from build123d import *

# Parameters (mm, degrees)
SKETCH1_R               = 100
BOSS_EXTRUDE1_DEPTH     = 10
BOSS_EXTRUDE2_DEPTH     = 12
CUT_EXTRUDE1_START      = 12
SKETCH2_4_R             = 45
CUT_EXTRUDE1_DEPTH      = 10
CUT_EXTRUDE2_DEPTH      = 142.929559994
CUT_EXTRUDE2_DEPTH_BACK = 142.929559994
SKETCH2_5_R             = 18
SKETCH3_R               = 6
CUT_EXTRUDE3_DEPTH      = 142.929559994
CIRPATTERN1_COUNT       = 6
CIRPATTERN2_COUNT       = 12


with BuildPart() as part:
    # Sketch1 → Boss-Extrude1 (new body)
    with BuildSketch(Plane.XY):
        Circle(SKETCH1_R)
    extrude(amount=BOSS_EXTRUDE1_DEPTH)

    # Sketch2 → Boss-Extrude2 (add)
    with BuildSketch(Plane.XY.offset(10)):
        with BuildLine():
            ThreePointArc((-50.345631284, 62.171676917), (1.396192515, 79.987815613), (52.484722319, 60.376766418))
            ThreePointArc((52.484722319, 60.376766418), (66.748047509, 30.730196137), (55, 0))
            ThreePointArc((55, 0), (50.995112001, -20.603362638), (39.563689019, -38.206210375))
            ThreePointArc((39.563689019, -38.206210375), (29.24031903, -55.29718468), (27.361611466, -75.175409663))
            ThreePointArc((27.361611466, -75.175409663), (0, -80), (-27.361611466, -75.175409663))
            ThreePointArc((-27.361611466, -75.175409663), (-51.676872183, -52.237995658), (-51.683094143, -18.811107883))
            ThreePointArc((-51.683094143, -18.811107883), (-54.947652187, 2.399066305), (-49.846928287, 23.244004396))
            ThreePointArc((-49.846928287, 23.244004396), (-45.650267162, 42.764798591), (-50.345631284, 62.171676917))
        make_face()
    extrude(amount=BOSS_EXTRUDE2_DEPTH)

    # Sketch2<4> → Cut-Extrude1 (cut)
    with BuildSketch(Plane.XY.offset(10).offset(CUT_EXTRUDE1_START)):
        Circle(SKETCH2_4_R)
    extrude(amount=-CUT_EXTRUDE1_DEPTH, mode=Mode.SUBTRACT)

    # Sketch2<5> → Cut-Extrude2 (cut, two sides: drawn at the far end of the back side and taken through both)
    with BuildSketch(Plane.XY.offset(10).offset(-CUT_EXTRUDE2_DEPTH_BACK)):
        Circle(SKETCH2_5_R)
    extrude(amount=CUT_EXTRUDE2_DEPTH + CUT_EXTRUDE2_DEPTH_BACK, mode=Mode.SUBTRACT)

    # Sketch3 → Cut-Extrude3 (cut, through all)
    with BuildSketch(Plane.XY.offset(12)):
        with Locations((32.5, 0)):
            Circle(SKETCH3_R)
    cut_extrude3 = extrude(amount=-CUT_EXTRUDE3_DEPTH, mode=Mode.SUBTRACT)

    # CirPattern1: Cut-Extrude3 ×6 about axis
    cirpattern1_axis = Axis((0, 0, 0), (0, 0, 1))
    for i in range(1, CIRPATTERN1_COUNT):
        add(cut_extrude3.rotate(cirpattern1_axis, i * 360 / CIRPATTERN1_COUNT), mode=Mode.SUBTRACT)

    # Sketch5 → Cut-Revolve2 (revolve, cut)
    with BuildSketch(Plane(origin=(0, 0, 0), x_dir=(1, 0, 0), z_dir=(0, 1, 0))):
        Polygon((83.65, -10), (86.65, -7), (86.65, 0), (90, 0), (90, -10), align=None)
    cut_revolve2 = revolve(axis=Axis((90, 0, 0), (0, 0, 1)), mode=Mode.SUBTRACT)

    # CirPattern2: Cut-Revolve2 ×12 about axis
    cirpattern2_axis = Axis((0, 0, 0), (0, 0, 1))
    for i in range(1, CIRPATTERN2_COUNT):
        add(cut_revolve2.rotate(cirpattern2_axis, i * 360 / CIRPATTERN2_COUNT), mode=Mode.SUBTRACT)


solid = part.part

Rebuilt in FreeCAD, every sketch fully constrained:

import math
import FreeCAD as App
import Part
import Sketcher

V = App.Vector
Q = App.Units.Quantity

doc = App.newDocument("Part")
params = doc.addObject("Spreadsheet::Sheet", "Params")
for row, (alias, value) in enumerate([
    ("sketch1_diameter", "200 mm"),
    ("pad1_length", "10 mm"),
    ("sketch2_radius", "80 mm"),
    ("sketch2_radius2", "55 mm"),
    ("pad2_length", "12 mm"),
    ("sketch3_diameter", "90 mm"),
    ("pocket1_length", "10 mm"),
    ("sketch4_diameter", "36 mm"),
    ("sketch5_diameter", "12 mm"),
    ("sketch6_height", "10 mm"),
    ("sketch6_height2", "7 mm"),
    ("sketch6_width", "6.35 mm"),
    ("groove_angle", "360 deg"),
], start=1):
    params.set(f"A{row}", alias)
    params.set(f"B{row}", "=" + value)
    params.setAlias(f"B{row}", alias)

body = doc.addObject("PartDesign::Body", "Body")

sketch1 = body.newObject("Sketcher::SketchObject", "Sketch")
sketch1.AttachmentSupport = (doc.getObject("XY_Plane"), [""])
sketch1.MapMode = "FlatFace"
sketch1.addGeometry(Part.Circle(V(0, 0, 0), V(0, 0, 1), 100), False)
sketch1.addConstraint([
    Sketcher.Constraint("Coincident", 0, 3, -1, 1),
    Sketcher.Constraint("Diameter", 0, Q("200 mm")),
])
sketch1.setExpression("Constraints[1]", "Params.sketch1_diameter")
pad1 = body.newObject("PartDesign::Pad", "Pad")
pad1.Profile = sketch1
pad1.setExpression("Length", "Params.pad1_length")

sketch2 = body.newObject("Sketcher::SketchObject", "Sketch001")
sketch2.AttachmentSupport = (doc.getObject("XY_Plane"), [""])
sketch2.MapMode = "FlatFace"
sketch2.AttachmentOffset = App.Placement(V(0, 0, 10), App.Rotation())
sketch2.addGeometry([
    Part.ArcOfCircle(Part.Circle(V(0, 0, 0), V(0, 0, 1), 80), math.radians(49), math.radians(129)),
    Part.ArcOfCircle(Part.Circle(V(-90, 42, 0), V(0, 0, 1), 45), math.radians(-25), math.radians(26)),
    Part.ArcOfCircle(Part.Circle(V(0, 0, 0), V(0, 0, 1), 55), math.radians(155), math.radians(200)),
    Part.ArcOfCircle(Part.Circle(V(-13, -36, 0), V(0, 0, 1), 42), math.radians(157), math.radians(250)),
    Part.ArcOfCircle(Part.Circle(V(0, 0, 0), V(0, 0, 1), 80), math.radians(-110), math.radians(-70)),
    Part.ArcOfCircle(Part.Circle(V(72, -69, 0), V(0, 0, 1), 45), math.radians(136), math.radians(187)),
    Part.ArcOfCircle(Part.Circle(V(0, 0, 0), V(0, 0, 1), 55), math.radians(-44), math.radians(0)),
    Part.ArcOfCircle(Part.Circle(V(25, 29, 0), V(0, 0, 1), 42), math.radians(-44), math.radians(49)),
], False)
sketch2.addConstraint([
    Sketcher.Constraint("Coincident", 0, 2, 1, 2),
    Sketcher.Constraint("Tangent", 1, 1, 2, 1),
    Sketcher.Constraint("Coincident", 2, 2, 3, 1),
    Sketcher.Constraint("Tangent", 3, 2, 4, 1),
    Sketcher.Constraint("Coincident", 4, 2, 5, 2),
    Sketcher.Constraint("Tangent", 5, 1, 6, 1),
    Sketcher.Constraint("Coincident", 6, 2, 7, 1),
    Sketcher.Constraint("Tangent", 7, 2, 0, 1),
    Sketcher.Constraint("Coincident", 0, 3, -1, 1),
    Sketcher.Constraint("Coincident", 2, 3, -1, 1),
    Sketcher.Constraint("Coincident", 4, 3, -1, 1),
    Sketcher.Constraint("Coincident", 6, 3, -1, 1),
    Sketcher.Constraint("Equal", 0, 4),
    Sketcher.Constraint("Equal", 1, 5),
    Sketcher.Constraint("Equal", 2, 6),
    Sketcher.Constraint("PointOnObject", 6, 2, -1),
    Sketcher.Constraint("Horizontal", 3, 2, 4, 2),
    Sketcher.Constraint("Radius", 0, Q("80 mm")),
    Sketcher.Constraint("Radius", 2, Q("55 mm")),
    Sketcher.Constraint("Radius", 7, Q("41.575028 mm")),
    Sketcher.Constraint("Radius", 1, Q("44.831256 mm")),
    Sketcher.Constraint("Radius", 3, Q("42.203238 mm")),
    Sketcher.Constraint("DistanceY", 3, 2, 2, 2, Q("56.364302 mm")),
    Sketcher.Constraint("DistanceY", -1, 1, 1, 3, Q("42.190512 mm")),
])
sketch2.setExpression("Constraints[17]", "Params.sketch2_radius")
sketch2.setExpression("Constraints[18]", "Params.sketch2_radius2")
pad2 = body.newObject("PartDesign::Pad", "Pad001")
pad2.Profile = sketch2
pad2.setExpression("Length", "Params.pad2_length")

sketch3 = body.newObject("Sketcher::SketchObject", "Sketch002")
sketch3.AttachmentSupport = (doc.getObject("XY_Plane"), [""])
sketch3.MapMode = "FlatFace"
sketch3.AttachmentOffset = App.Placement(V(0, 0, 22), App.Rotation())
sketch3.addGeometry(Part.Circle(V(0, 0, 0), V(0, 0, 1), 45), False)
sketch3.addConstraint([
    Sketcher.Constraint("Coincident", 0, 3, -1, 1),
    Sketcher.Constraint("Diameter", 0, Q("90 mm")),
])
sketch3.setExpression("Constraints[1]", "Params.sketch3_diameter")
pocket1 = body.newObject("PartDesign::Pocket", "Pocket")
pocket1.Profile = sketch3
pocket1.setExpression("Length", "Params.pocket1_length")

sketch4 = body.newObject("Sketcher::SketchObject", "Sketch003")
sketch4.AttachmentSupport = (doc.getObject("XY_Plane"), [""])
sketch4.MapMode = "FlatFace"
sketch4.AttachmentOffset = App.Placement(V(0, 0, 10), App.Rotation())
sketch4.addGeometry(Part.Circle(V(0, 0, 0), V(0, 0, 1), 18), False)
sketch4.addConstraint([
    Sketcher.Constraint("Coincident", 0, 3, -1, 1),
    Sketcher.Constraint("Diameter", 0, Q("36 mm")),
])
sketch4.setExpression("Constraints[1]", "Params.sketch4_diameter")
pocket2 = body.newObject("PartDesign::Pocket", "Pocket001")
pocket2.Profile = sketch4
pocket2.Type = "ThroughAll"
pocket2.Midplane = True

sketch5 = body.newObject("Sketcher::SketchObject", "Sketch004")
sketch5.AttachmentSupport = (doc.getObject("XY_Plane"), [""])
sketch5.MapMode = "FlatFace"
sketch5.AttachmentOffset = App.Placement(V(0, 0, 12), App.Rotation())
sketch5.addGeometry(Part.Circle(V(32, 0, 0), V(0, 0, 1), 6), False)
sketch5.addConstraint([
    Sketcher.Constraint("PointOnObject", 0, 3, -1),
    Sketcher.Constraint("Diameter", 0, Q("12 mm")),
    Sketcher.Constraint("DistanceX", -1, 1, 0, 3, Q("32.5 mm")),
])
sketch5.setExpression("Constraints[1]", "Params.sketch5_diameter")
pocket3 = body.newObject("PartDesign::Pocket", "Pocket002")
pocket3.Profile = sketch5
pocket3.Type = "ThroughAll"
doc.recompute()

polarpattern = body.newObject("PartDesign::PolarPattern", "PolarPattern")
polarpattern.Originals = [pocket3]
polarpattern.Axis = (doc.getObject("Z_Axis"), [""])
polarpattern.Angle = 360
polarpattern.Occurrences = 6
body.Tip = polarpattern

sketch6 = body.newObject("Sketcher::SketchObject", "Sketch005")
sketch6.AttachmentSupport = (doc.getObject("XZ_Plane"), [""])
sketch6.MapMode = "FlatFace"
sketch6.addGeometry([
    Part.LineSegment(V(86.7, 7, 0), V(83.7, 10, 0)),
    Part.LineSegment(V(83.7, 10, 0), V(90, 10, 0)),
    Part.LineSegment(V(90, 10, 0), V(90, 0, 0)),
    Part.LineSegment(V(90, 0, 0), V(86.7, 0, 0)),
    Part.LineSegment(V(86.7, 0, 0), V(86.7, 7, 0)),
], False)
sketch6.addGeometry(Part.LineSegment(V(90, 0, 0), V(90, 10, 0)), True)
sketch6.addConstraint([
    Sketcher.Constraint("Coincident", 0, 2, 1, 1),
    Sketcher.Constraint("Coincident", 1, 2, 2, 1),
    Sketcher.Constraint("Coincident", 2, 2, 3, 1),
    Sketcher.Constraint("Coincident", 3, 2, 4, 1),
    Sketcher.Constraint("Coincident", 4, 2, 0, 1),
    Sketcher.Constraint("Horizontal", 1),
    Sketcher.Constraint("Vertical", 2),
    Sketcher.Constraint("Horizontal", 3),
    Sketcher.Constraint("Vertical", 4),
    Sketcher.Constraint("Vertical", 5),
    Sketcher.Constraint("Coincident", 5, 1, 2, 2),
    Sketcher.Constraint("PointOnObject", 2, 2, -1),
    Sketcher.Constraint("Horizontal", 0, 2, 5, 2),
    Sketcher.Constraint("DistanceY", 2, 2, 2, 1, Q("10 mm")),
    Sketcher.Constraint("DistanceY", 4, 1, 4, 2, Q("7 mm")),
    Sketcher.Constraint("Angle", 0, Q("135 deg")),
    Sketcher.Constraint("DistanceX", -1, 1, 1, 2, Q("90 mm")),
    Sketcher.Constraint("DistanceX", 1, 1, 1, 2, Q("6.35 mm")),
])
sketch6.setExpression("Constraints[13]", "Params.sketch6_height")
sketch6.setExpression("Constraints[14]", "Params.sketch6_height2")
sketch6.setExpression("Constraints[17]", "Params.sketch6_width")
groove = body.newObject("PartDesign::Groove", "Groove")
groove.Profile = sketch6
groove.ReferenceAxis = (sketch6, ["Axis0"])
groove.setExpression("Angle", "Params.groove_angle")
doc.recompute()

polarpattern2 = body.newObject("PartDesign::PolarPattern", "PolarPattern001")
polarpattern2.Originals = [groove]
polarpattern2.Axis = (doc.getObject("Z_Axis"), [""])
polarpattern2.Angle = 360
polarpattern2.Occurrences = 12
body.Tip = polarpattern2

doc.recompute()
